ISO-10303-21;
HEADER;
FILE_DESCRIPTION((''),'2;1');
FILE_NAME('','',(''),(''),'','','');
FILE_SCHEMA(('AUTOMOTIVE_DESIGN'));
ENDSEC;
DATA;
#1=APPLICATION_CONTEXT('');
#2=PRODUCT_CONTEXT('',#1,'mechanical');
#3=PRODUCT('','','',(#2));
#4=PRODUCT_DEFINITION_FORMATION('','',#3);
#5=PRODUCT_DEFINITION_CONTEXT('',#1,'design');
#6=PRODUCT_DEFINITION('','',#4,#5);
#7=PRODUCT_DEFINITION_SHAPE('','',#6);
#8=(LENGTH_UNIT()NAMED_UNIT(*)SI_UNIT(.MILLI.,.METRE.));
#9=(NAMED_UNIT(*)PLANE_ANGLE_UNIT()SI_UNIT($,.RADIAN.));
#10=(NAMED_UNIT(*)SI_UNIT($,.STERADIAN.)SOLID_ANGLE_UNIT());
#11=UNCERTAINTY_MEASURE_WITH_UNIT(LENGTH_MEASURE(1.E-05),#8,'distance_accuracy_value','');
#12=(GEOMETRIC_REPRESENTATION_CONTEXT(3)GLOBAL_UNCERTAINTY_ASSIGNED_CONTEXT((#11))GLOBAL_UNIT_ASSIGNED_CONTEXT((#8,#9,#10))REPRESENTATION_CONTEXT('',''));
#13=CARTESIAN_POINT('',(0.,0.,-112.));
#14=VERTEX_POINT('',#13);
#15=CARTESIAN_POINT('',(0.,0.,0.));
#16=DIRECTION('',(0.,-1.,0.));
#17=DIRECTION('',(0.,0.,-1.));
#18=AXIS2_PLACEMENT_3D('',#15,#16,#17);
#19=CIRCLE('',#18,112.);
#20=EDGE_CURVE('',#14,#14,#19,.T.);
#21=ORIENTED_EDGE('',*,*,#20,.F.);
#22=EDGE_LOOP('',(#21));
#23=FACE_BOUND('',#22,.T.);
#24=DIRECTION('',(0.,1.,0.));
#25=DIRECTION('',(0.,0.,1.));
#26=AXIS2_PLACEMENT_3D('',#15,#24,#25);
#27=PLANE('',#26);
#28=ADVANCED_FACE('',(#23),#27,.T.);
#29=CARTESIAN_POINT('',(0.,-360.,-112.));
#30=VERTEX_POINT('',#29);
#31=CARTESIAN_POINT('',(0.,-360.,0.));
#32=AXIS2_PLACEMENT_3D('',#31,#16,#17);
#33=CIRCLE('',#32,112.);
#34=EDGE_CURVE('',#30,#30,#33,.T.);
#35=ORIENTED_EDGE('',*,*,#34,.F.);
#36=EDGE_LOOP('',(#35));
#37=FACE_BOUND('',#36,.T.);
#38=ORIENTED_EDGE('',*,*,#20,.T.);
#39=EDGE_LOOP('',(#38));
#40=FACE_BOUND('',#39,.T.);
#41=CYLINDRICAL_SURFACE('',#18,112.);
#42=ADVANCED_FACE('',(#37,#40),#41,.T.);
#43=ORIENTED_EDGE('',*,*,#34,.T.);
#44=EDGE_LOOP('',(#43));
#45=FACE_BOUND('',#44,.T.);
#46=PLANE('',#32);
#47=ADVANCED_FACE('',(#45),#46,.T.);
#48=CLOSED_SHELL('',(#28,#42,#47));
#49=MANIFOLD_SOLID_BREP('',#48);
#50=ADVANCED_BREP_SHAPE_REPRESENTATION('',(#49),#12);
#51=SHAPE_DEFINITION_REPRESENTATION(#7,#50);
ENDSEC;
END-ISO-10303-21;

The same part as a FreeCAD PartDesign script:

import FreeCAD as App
import Part
import Sketcher
Q = App.Units.Quantity


def add_polygon(sketch, points):
    """Adds a closed chain of lines whose ends are joined by coincident constraints."""
    first, n = sketch.GeometryCount, len(points)
    for a, b in zip(points, points[1:] + points[:1]):
        sketch.addGeometry(Part.LineSegment(App.Vector(*a, 0), App.Vector(*b, 0)), False)
    for i in range(n):
        sketch.addConstraint(Sketcher.Constraint("Coincident", first + i, 2, first + (i + 1) % n, 1))

doc = App.newDocument("Part")
body = doc.addObject("PartDesign::Body", "Body")

sketch1 = body.newObject("Sketcher::SketchObject", "Sketch")
sketch1.AttachmentSupport = (doc.getObject("XY_Plane"), [""])
sketch1.MapMode = "FlatFace"
add_polygon(sketch1, [(0, 0), (0, -360), (112, -360), (112, 0)])
sketch1.addConstraint(Sketcher.Constraint("Vertical", 0))
sketch1.addConstraint(Sketcher.Constraint("Horizontal", 1))
sketch1.addConstraint(Sketcher.Constraint("Vertical", 2))
sketch1.addConstraint(Sketcher.Constraint("Horizontal", 3))
sketch1.addConstraint(Sketcher.Constraint("Coincident", 3, 2, -1, 1))
sketch1.addConstraint(Sketcher.Constraint("DistanceX", 1, 1, 1, 2, Q("112 mm")))
sketch1.addConstraint(Sketcher.Constraint("DistanceY", 0, 2, 0, 1, Q("360 mm")))
revolution = body.newObject("PartDesign::Revolution", "Revolution")
revolution.Profile = sketch1
revolution.ReferenceAxis = (sketch1, ["V_Axis"])
revolution.Angle = 360

doc.recompute()
